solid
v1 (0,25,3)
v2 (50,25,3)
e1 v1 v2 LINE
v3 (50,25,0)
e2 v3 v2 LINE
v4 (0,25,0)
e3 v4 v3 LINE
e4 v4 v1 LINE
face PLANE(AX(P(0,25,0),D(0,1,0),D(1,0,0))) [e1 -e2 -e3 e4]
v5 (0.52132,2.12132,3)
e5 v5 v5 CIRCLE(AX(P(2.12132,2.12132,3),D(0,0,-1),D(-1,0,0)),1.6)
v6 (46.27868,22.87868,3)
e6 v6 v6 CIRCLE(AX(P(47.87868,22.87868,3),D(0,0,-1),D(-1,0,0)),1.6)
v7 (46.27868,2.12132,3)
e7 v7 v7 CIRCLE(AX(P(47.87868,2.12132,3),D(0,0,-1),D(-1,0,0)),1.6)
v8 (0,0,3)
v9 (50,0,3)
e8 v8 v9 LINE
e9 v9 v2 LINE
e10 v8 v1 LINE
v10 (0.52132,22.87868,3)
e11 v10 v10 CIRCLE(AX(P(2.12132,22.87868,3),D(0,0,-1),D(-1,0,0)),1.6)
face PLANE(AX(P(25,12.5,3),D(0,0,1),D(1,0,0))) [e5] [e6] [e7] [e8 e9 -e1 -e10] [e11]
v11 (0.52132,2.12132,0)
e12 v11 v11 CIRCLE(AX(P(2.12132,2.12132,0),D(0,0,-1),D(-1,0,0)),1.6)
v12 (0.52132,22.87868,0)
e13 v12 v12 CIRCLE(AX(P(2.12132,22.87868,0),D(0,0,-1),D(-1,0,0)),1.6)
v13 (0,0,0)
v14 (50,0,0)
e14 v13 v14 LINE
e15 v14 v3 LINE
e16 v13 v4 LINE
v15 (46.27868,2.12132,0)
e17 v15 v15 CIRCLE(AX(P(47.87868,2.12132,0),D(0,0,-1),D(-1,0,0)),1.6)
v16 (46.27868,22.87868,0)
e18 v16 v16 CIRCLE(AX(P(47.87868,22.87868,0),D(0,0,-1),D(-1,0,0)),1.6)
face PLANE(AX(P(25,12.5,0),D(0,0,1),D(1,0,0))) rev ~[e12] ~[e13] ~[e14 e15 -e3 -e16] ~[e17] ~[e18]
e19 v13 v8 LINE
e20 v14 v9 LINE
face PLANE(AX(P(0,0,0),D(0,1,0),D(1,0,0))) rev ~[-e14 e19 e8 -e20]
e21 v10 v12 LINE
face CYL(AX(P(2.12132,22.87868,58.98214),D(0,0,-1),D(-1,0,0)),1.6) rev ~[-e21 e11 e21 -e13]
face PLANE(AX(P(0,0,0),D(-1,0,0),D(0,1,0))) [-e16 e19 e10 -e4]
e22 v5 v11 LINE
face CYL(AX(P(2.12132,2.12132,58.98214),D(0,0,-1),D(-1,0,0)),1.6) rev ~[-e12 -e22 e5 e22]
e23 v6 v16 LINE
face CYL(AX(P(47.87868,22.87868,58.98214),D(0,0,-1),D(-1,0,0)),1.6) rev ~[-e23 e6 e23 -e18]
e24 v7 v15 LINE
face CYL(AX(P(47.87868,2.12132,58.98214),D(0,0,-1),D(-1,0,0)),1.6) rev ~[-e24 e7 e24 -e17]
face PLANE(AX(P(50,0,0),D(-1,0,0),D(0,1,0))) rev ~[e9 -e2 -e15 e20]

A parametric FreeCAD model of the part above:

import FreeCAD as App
import Part
import Sketcher

doc = App.newDocument("Part")
body = doc.addObject("PartDesign::Body", "Body")

# Sketch on XY plane
sketch1 = doc.addObject("Sketcher::SketchObject", "Sketch")
body.addObject(sketch1)
sketch1.AttachmentSupport = (doc.XY_Plane, [""])
sketch1.MapMode = "FlatFace"
sketch1.addGeometry(Part.LineSegment(App.Vector(0, 25, 0), App.Vector(0, 0, 0)), False)
sketch1.addGeometry(Part.LineSegment(App.Vector(0, 0, 0), App.Vector(50, 0, 0)), False)
sketch1.addGeometry(Part.LineSegment(App.Vector(50, 0, 0), App.Vector(50, 25, 0)), False)
sketch1.addGeometry(Part.LineSegment(App.Vector(50, 25, 0), App.Vector(0, 25, 0)), False)
sketch1.addConstraint(Sketcher.Constraint("Coincident", 0, 2, 1, 1))
sketch1.addConstraint(Sketcher.Constraint("Coincident", 1, 2, 2, 1))
sketch1.addConstraint(Sketcher.Constraint("Coincident", 2, 2, 3, 1))
sketch1.addConstraint(Sketcher.Constraint("Coincident", 3, 2, 0, 1))
sketch1.addConstraint(Sketcher.Constraint("Vertical", 0))
sketch1.addConstraint(Sketcher.Constraint("Horizontal", 1))
sketch1.addConstraint(Sketcher.Constraint("Vertical", 2))
sketch1.addConstraint(Sketcher.Constraint("Horizontal", 3))
sketch1.addConstraint(Sketcher.Constraint("Coincident", 0, 2, -1, 1))
sketch1.addConstraint(Sketcher.Constraint("DistanceX", 1, 1, 1, 2, 50.0))
sketch1.addConstraint(Sketcher.Constraint("DistanceY", 0, 2, 0, 1, 25.0))
pad1 = doc.addObject("PartDesign::Pad", "Pad")
body.addObject(pad1)
pad1.Profile = sketch1
pad1.Length = 3

# Sketch on XY plane
sketch2 = doc.addObject("Sketcher::SketchObject", "Sketch001")
body.addObject(sketch2)
sketch2.AttachmentSupport = (doc.XY_Plane, [""])
sketch2.MapMode = "FlatFace"
sketch2.AttachmentOffset = App.Placement(App.Vector(0, 0, 3), App.Rotation())
sketch2.addGeometry(Part.Circle(App.Vector(2.12132, 22.87868, 0), App.Vector(0, 0, 1), 1.6), False)
sketch2.addConstraint(Sketcher.Constraint("Diameter", 0, 3.2))
sketch2.addConstraint(Sketcher.Constraint("DistanceX", -1, 1, 0, 3, 2.12132))
sketch2.addConstraint(Sketcher.Constraint("DistanceY", -1, 1, 0, 3, 22.87868))
doc.recompute()
hole = doc.addObject("PartDesign::Hole", "Hole")
body.addObject(hole)
hole.Profile = sketch2
hole.ThreadType = "None"
hole.Diameter = 3.2
hole.DepthType = "ThroughAll"

# Sketch on XY plane
sketch3 = doc.addObject("Sketcher::SketchObject", "Sketch002")
body.addObject(sketch3)
sketch3.AttachmentSupport = (doc.XY_Plane, [""])
sketch3.MapMode = "FlatFace"
sketch3.AttachmentOffset = App.Placement(App.Vector(0, 0, 3), App.Rotation())
sketch3.addGeometry(Part.Circle(App.Vector(2.12132, 2.12132, 0), App.Vector(0, 0, 1), 1.6), False)
sketch3.addConstraint(Sketcher.Constraint("Diameter", 0, 3.2))
sketch3.addConstraint(Sketcher.Constraint("DistanceX", -1, 1, 0, 3, 2.12132))
sketch3.addConstraint(Sketcher.Constraint("DistanceY", -1, 1, 0, 3, 2.12132))
doc.recompute()
hole2 = doc.addObject("PartDesign::Hole", "Hole001")
body.addObject(hole2)
hole2.Profile = sketch3
hole2.ThreadType = "None"
hole2.Diameter = 3.2
hole2.DepthType = "ThroughAll"

# Sketch on XY plane
sketch4 = doc.addObject("Sketcher::SketchObject", "Sketch003")
body.addObject(sketch4)
sketch4.AttachmentSupport = (doc.XY_Plane, [""])
sketch4.MapMode = "FlatFace"
sketch4.AttachmentOffset = App.Placement(App.Vector(0, 0, 3), App.Rotation())
sketch4.addGeometry(Part.Circle(App.Vector(47.87868, 2.12132, 0), App.Vector(0, 0, 1), 1.6), False)
sketch4.addConstraint(Sketcher.Constraint("Diameter", 0, 3.2))
sketch4.addConstraint(Sketcher.Constraint("DistanceX", -1, 1, 0, 3, 47.87868))
sketch4.addConstraint(Sketcher.Constraint("DistanceY", -1, 1, 0, 3, 2.12132))
doc.recompute()
hole3 = doc.addObject("PartDesign::Hole", "Hole002")
body.addObject(hole3)
hole3.Profile = sketch4
hole3.ThreadType = "None"
hole3.Diameter = 3.2
hole3.DepthType = "ThroughAll"

# Sketch on XY plane
sketch5 = doc.addObject("Sketcher::SketchObject", "Sketch004")
body.addObject(sketch5)
sketch5.AttachmentSupport = (doc.XY_Plane, [""])
sketch5.MapMode = "FlatFace"
sketch5.AttachmentOffset = App.Placement(App.Vector(0, 0, 3), App.Rotation())
sketch5.addGeometry(Part.Circle(App.Vector(47.87868, 22.87868, 0), App.Vector(0, 0, 1), 1.6), False)
sketch5.addConstraint(Sketcher.Constraint("Diameter", 0, 3.2))
sketch5.addConstraint(Sketcher.Constraint("DistanceX", -1, 1, 0, 3, 47.87868))
sketch5.addConstraint(Sketcher.Constraint("DistanceY", -1, 1, 0, 3, 22.87868))
doc.recompute()
hole4 = doc.addObject("PartDesign::Hole", "Hole003")
body.addObject(hole4)
hole4.Profile = sketch5
hole4.ThreadType = "None"
hole4.Diameter = 3.2
hole4.DepthType = "ThroughAll"

doc.recompute()
